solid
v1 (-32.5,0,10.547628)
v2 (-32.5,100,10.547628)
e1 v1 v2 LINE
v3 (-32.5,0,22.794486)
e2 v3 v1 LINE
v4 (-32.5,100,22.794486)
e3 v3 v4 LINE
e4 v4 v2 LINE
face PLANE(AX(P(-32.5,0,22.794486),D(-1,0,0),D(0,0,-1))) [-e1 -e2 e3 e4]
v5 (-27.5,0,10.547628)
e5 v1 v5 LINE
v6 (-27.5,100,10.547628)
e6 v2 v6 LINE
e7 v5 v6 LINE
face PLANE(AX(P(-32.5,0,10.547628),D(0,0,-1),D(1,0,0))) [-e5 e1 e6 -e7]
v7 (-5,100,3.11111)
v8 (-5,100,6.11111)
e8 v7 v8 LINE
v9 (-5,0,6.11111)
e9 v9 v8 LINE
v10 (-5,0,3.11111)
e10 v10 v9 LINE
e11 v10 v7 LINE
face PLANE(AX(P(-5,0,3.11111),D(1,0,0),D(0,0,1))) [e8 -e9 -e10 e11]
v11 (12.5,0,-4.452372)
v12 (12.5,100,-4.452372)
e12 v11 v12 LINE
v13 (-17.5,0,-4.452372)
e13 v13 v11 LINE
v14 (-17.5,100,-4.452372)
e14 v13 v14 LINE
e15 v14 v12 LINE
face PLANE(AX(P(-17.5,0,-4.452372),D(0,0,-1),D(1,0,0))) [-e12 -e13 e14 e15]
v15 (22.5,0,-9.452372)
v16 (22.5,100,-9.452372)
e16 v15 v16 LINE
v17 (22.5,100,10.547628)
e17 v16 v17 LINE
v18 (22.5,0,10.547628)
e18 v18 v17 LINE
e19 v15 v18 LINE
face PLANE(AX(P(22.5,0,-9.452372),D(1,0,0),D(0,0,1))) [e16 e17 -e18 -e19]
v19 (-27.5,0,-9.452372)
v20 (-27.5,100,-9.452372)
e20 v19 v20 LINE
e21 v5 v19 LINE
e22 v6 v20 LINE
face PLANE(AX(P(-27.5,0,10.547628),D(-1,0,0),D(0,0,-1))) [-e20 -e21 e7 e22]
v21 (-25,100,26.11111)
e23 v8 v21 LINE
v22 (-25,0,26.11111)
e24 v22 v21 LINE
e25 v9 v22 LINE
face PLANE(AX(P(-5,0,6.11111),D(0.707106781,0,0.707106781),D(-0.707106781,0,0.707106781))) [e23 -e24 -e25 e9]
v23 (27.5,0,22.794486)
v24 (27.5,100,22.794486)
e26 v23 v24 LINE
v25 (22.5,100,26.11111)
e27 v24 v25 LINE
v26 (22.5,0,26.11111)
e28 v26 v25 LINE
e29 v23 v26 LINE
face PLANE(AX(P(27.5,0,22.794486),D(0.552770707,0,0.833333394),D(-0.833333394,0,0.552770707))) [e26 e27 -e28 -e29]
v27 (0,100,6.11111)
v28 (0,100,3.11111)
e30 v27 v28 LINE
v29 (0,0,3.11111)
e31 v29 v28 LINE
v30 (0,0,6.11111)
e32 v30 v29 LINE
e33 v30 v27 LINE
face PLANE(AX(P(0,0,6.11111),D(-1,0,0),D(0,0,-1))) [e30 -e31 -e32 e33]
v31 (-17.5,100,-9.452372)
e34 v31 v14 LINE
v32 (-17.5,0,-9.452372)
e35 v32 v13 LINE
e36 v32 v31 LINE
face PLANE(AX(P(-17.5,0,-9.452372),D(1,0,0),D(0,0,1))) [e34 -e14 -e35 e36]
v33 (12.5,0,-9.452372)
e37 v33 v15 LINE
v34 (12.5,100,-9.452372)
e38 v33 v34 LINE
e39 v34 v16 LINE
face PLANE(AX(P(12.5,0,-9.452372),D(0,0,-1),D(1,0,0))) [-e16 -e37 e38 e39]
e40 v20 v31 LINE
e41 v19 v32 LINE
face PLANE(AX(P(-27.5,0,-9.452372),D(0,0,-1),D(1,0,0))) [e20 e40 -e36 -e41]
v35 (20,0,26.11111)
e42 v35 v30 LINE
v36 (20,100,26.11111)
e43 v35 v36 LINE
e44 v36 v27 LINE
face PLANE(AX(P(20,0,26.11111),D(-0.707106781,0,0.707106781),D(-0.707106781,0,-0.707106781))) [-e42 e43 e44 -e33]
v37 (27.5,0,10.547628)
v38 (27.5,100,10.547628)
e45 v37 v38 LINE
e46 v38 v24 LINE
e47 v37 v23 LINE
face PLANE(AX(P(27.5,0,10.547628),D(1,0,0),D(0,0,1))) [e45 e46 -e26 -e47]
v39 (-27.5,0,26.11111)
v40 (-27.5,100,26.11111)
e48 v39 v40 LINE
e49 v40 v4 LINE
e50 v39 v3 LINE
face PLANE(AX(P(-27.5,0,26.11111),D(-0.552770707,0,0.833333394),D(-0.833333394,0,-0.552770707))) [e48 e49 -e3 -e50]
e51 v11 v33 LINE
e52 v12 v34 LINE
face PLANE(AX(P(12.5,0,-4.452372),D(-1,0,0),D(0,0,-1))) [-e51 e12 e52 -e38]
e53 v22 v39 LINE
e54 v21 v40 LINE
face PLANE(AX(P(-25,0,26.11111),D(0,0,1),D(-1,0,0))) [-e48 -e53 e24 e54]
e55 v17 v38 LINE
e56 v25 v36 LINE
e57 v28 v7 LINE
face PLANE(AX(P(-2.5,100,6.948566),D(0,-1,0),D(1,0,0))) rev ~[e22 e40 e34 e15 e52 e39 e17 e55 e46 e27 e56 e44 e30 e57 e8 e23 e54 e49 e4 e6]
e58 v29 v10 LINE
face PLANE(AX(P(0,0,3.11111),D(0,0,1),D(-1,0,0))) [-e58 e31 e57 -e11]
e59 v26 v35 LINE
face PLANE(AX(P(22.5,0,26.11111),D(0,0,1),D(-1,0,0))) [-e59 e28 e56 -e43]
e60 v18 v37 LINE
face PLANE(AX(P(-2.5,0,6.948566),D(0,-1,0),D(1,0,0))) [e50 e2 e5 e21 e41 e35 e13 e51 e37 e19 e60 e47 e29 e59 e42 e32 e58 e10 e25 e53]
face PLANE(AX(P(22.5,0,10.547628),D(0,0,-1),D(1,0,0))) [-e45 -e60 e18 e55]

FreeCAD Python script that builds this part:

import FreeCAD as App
import Part
import Sketcher

V = App.Vector


def add_polygon(sketch, points):
    """Adds a closed chain of lines whose ends are joined by coincident constraints."""
    first, n = sketch.GeometryCount, len(points)
    for a, b in zip(points, points[1:] + points[:1]):
        sketch.addGeometry(Part.LineSegment(App.Vector(*a, 0), App.Vector(*b, 0)), False)
    for i in range(n):
        sketch.addConstraint(Sketcher.Constraint("Coincident", first + i, 2, first + (i + 1) % n, 1))

doc = App.newDocument("Part")
body = doc.addObject("PartDesign::Body", "Body")

sketch1 = body.newObject("Sketcher::SketchObject", "Sketch")
sketch1.AttachmentSupport = (doc.getObject("XZ_Plane"), [""])
sketch1.MapMode = "FlatFace"
add_polygon(sketch1, [(-5, 3.1), (-5, 6.1), (-25, 26.1), (-27.5, 26.1), (-32.5, 22.8), (-32.5, 10.5), (-27.5, 10.5), (-27.5, -9.5), (-17.5, -9.5), (-17.5, -4.5), (12.5, -4.5), (12.5, -9.5), (22.5, -9.5), (22.5, 10.5), (27.5, 10.5), (27.5, 22.8), (22.5, 26.1), (20, 26.1), (0, 6.1), (0, 3.1)])
sketch1.addConstraint(Sketcher.Constraint("Vertical", 0))
sketch1.addConstraint(Sketcher.Constraint("Horizontal", 2))
sketch1.addConstraint(Sketcher.Constraint("Vertical", 4))
sketch1.addConstraint(Sketcher.Constraint("Horizontal", 5))
sketch1.addConstraint(Sketcher.Constraint("Vertical", 6))
sketch1.addConstraint(Sketcher.Constraint("Horizontal", 7))
sketch1.addConstraint(Sketcher.Constraint("Vertical", 8))
sketch1.addConstraint(Sketcher.Constraint("Horizontal", 9))
sketch1.addConstraint(Sketcher.Constraint("Vertical", 10))
sketch1.addConstraint(Sketcher.Constraint("Horizontal", 11))
sketch1.addConstraint(Sketcher.Constraint("Vertical", 12))
sketch1.addConstraint(Sketcher.Constraint("Horizontal", 13))
sketch1.addConstraint(Sketcher.Constraint("Vertical", 14))
sketch1.addConstraint(Sketcher.Constraint("Horizontal", 16))
sketch1.addConstraint(Sketcher.Constraint("Vertical", 18))
sketch1.addConstraint(Sketcher.Constraint("Horizontal", 19))
sketch1.addConstraint(Sketcher.Constraint("Symmetric", 5, 2, 13, 2, -2))
sketch1.addConstraint(Sketcher.Constraint("PointOnObject", 17, 2, -2))
sketch1.addConstraint(Sketcher.Constraint("Perpendicular", 1, 17))
sketch1.addConstraint(Sketcher.Constraint("Horizontal", 7, 2, 10, 2))
sketch1.addConstraint(Sketcher.Constraint("Horizontal", 3, 2, 14, 2))
sketch1.addConstraint(Sketcher.Constraint("Horizontal", 2, 2, 15, 2))
sketch1.addConstraint(Sketcher.Constraint("Horizontal", 0, 2, 17, 2))
sketch1.addConstraint(Sketcher.Constraint("Vertical", 2, 2, 5, 2))
sketch1.addConstraint(Sketcher.Constraint("Vertical", 12, 2, 15, 2))
sketch1.addConstraint(Sketcher.Constraint("Equal", 7, 11))
sketch1.addConstraint(Sketcher.Constraint("Equal", 5, 13))
sketch1.addConstraint(Sketcher.Constraint("Equal", 2, 16))
sketch1.addConstraint(Sketcher.Constraint("Equal", 13, 19))
sketch1.addConstraint(Sketcher.Constraint("Equal", 19, 8))
sketch1.addConstraint(Sketcher.Constraint("DistanceX", 5, 1, 5, 2, 5.0))
sketch1.addConstraint(Sketcher.Constraint("DistanceX", 7, 1, 7, 2, 10.0))
sketch1.addConstraint(Sketcher.Constraint("DistanceX", 9, 1, 9, 2, 30.0))
sketch1.addConstraint(Sketcher.Constraint("DistanceY", 0, 1, 0, 2, 3.0))
sketch1.addConstraint(Sketcher.Constraint("DistanceY", 6, 2, 6, 1, 20.0))
sketch1.addConstraint(Sketcher.Constraint("Distance", 3, 6.0))
sketch1.addConstraint(Sketcher.Constraint("DistanceX", 2, 2, 2, 1, 2.5))
sketch1.addConstraint(Sketcher.Constraint("DistanceY", 4, 2, 4, 1, 12.246858))
sketch1.addConstraint(Sketcher.Constraint("DistanceY", -1, 1, 0, 2, 6.11111))
pad1 = body.newObject("PartDesign::Pad", "Pad")
pad1.Profile = sketch1
pad1.Length = 100
pad1.Reversed = True

doc.recompute()
